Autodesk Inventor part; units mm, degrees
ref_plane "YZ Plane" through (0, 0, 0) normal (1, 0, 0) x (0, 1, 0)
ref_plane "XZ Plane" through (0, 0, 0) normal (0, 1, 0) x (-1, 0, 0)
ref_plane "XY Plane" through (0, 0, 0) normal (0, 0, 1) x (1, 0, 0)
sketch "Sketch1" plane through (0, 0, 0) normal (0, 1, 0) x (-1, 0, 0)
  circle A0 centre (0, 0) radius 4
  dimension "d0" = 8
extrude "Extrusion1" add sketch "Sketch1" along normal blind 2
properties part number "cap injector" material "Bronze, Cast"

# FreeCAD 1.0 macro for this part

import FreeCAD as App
import Part
import Sketcher

V = App.Vector

doc = App.newDocument("Part")
body = doc.addObject("PartDesign::Body", "Body")

sketch1 = body.newObject("Sketcher::SketchObject", "Sketch")
sketch1.AttachmentSupport = (doc.getObject("XZ_Plane"), [""])
sketch1.MapMode = "FlatFace"
sketch1.addGeometry(Part.Circle(V(0, 0, 0), V(0, 0, 1), 4), False)
sketch1.addConstraint([
    Sketcher.Constraint("Coincident", 0, 3, -1, 1),
    Sketcher.Constraint("Diameter", 0, 8.0),
])
pad1 = body.newObject("PartDesign::Pad", "Pad")
pad1.Profile = sketch1
pad1.Length = 2
pad1.Reversed = True

doc.recompute()
